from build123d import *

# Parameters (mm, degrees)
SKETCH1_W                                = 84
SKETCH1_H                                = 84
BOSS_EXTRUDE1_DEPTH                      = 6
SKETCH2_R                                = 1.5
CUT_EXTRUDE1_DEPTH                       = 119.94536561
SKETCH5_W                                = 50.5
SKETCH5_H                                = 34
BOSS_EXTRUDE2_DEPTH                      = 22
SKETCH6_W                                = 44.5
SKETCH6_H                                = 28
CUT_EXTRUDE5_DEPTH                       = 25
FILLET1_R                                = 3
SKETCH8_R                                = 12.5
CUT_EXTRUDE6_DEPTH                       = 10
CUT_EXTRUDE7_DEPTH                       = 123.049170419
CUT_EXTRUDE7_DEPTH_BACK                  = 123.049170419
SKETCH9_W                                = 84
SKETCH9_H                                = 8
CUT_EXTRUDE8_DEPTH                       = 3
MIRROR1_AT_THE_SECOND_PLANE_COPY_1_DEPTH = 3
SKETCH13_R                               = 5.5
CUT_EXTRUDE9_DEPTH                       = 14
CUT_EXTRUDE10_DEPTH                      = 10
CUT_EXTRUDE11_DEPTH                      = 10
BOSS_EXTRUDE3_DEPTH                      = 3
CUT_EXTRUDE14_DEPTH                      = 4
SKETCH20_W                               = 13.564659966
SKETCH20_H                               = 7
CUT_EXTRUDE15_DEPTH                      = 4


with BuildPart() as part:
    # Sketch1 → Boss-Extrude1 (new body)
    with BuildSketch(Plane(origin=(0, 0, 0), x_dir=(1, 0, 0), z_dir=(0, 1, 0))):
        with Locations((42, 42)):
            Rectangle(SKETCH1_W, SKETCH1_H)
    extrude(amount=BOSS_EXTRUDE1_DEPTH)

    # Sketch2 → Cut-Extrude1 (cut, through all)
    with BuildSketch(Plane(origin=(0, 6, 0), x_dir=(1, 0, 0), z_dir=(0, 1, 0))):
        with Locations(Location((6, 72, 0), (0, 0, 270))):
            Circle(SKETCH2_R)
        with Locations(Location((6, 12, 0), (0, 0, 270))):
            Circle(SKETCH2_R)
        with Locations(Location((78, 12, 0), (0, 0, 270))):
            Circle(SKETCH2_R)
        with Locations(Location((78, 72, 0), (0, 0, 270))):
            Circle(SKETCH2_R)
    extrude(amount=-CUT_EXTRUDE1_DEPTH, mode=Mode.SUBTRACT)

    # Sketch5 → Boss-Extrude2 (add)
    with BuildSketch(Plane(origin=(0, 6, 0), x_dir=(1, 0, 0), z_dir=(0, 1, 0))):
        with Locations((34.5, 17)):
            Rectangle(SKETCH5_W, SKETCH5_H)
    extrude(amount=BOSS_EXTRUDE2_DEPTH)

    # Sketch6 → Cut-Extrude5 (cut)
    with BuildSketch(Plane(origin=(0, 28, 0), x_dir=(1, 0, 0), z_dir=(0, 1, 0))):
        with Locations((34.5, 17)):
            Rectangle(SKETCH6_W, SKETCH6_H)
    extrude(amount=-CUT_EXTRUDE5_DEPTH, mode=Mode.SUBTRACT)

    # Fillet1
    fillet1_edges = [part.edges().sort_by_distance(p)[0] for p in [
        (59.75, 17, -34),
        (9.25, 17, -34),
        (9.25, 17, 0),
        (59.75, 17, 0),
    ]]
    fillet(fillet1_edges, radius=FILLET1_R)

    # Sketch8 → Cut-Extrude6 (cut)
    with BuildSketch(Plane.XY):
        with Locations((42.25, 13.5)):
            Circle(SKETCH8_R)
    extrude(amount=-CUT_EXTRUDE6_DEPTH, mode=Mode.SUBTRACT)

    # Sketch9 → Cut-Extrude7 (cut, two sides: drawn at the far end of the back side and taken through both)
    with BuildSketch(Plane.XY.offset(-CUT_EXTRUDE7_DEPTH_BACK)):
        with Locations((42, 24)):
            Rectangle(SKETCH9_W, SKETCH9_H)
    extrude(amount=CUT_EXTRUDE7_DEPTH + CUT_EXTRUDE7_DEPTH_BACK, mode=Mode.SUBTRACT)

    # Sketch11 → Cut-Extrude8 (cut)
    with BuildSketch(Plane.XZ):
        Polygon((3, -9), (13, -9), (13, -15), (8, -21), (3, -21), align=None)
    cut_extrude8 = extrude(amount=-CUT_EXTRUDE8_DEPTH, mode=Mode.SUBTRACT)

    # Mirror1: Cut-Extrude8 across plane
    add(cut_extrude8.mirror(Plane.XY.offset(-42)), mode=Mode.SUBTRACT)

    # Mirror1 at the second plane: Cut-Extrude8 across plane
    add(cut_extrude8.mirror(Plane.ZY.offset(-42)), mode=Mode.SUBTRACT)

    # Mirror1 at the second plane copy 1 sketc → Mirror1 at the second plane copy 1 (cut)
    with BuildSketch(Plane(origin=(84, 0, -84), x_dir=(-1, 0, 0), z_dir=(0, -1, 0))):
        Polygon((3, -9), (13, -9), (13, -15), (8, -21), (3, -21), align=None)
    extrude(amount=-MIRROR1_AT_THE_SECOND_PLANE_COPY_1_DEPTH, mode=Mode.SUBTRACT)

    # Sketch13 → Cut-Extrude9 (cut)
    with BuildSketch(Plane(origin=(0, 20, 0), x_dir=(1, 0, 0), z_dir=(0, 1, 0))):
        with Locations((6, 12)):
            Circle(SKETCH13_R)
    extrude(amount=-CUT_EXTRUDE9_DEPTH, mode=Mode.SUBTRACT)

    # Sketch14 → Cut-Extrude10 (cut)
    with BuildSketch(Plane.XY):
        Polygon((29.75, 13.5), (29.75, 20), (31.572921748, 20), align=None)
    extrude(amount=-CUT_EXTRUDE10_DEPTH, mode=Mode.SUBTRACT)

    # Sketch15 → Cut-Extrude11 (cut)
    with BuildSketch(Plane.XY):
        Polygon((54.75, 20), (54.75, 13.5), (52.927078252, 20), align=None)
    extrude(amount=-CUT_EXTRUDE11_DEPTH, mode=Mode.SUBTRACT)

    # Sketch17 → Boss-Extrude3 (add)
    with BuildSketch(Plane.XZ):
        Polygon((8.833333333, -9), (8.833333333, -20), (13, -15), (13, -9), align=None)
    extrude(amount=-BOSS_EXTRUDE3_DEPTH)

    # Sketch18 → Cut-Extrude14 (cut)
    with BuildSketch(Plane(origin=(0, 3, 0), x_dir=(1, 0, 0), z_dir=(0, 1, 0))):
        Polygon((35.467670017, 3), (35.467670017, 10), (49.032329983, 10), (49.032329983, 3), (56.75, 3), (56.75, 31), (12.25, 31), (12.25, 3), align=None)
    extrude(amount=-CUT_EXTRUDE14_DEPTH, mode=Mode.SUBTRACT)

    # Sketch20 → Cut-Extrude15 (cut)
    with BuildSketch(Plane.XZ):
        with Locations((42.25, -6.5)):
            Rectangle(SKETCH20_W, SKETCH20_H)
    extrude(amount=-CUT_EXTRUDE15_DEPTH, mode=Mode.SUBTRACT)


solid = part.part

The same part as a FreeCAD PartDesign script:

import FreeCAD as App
import Part
import Sketcher


def edges_at(feature, points):
    """Names of the edges that pass closest to the given points."""
    edges = feature.Shape.Edges
    near = lambda p: min(range(len(edges)), key=lambda i: edges[i].distToShape(Part.Vertex(*p))[0])
    return sorted({f"Edge{near(p) + 1}" for p in points})

doc = App.newDocument("Part")
body = doc.addObject("PartDesign::Body", "Body")

sketch1 = body.newObject("Sketcher::SketchObject", "Sketch")
sketch1.AttachmentSupport = (doc.getObject("XZ_Plane"), [""])
sketch1.MapMode = "FlatFace"
sketch1.addGeometry([
    Part.LineSegment(App.Vector(0, -84, 0), App.Vector(0, 0, 0)),
    Part.LineSegment(App.Vector(0, 0, 0), App.Vector(84, 0, 0)),
    Part.LineSegment(App.Vector(84, 0, 0), App.Vector(84, -84, 0)),
    Part.LineSegment(App.Vector(84, -84, 0), App.Vector(0, -84, 0)),
], False)
sketch1.addConstraint([
    Sketcher.Constraint("Coincident", 0, 2, 1, 1),
    Sketcher.Constraint("Coincident", 1, 2, 2, 1),
    Sketcher.Constraint("Coincident", 2, 2, 3, 1),
    Sketcher.Constraint("Coincident", 3, 2, 0, 1),
    Sketcher.Constraint("Vertical", 0),
    Sketcher.Constraint("Horizontal", 1),
    Sketcher.Constraint("Vertical", 2),
    Sketcher.Constraint("Horizontal", 3),
    Sketcher.Constraint("Coincident", 0, 2, -1, 1),
    Sketcher.Constraint("Equal", 3, 0),
    Sketcher.Constraint("DistanceX", 1, 1, 1, 2, 84.0),
])
pad1 = body.newObject("PartDesign::Pad", "Pad")
pad1.Profile = sketch1
pad1.Length = 6
pad1.Reversed = True

sketch2 = body.newObject("Sketcher::SketchObject", "Sketch001")
sketch2.AttachmentSupport = (doc.getObject("XZ_Plane"), [""])
sketch2.MapMode = "FlatFace"
sketch2.AttachmentOffset = App.Placement(App.Vector(0, 0, -6), App.Rotation())
sketch2.addGeometry([
    Part.Circle(App.Vector(6, -72, 0), App.Vector(0, 0, 1), 1.5),
    Part.Circle(App.Vector(6, -12, 0), App.Vector(0, 0, 1), 1.5),
    Part.Circle(App.Vector(78, -12, 0), App.Vector(0, 0, 1), 1.5),
    Part.Circle(App.Vector(78, -72, 0), App.Vector(0, 0, 1), 1.5),
], False)
sketch2.addConstraint([
    Sketcher.Constraint("Equal", 0, 1),
    Sketcher.Constraint("Equal", 1, 2),
    Sketcher.Constraint("Equal", 2, 3),
    Sketcher.Constraint("Horizontal", 1, 3, 2, 3),
    Sketcher.Constraint("Horizontal", 0, 3, 3, 3),
    Sketcher.Constraint("Vertical", 0, 3, 1, 3),
    Sketcher.Constraint("Vertical", 2, 3, 3, 3),
    Sketcher.Constraint("Diameter", 0, 3.0),
    Sketcher.Constraint("DistanceX", -1, 1, 0, 3, 6.0),
    Sketcher.Constraint("DistanceY", 0, 3, -1, 1, 72.0),
    Sketcher.Constraint("DistanceY", 1, 3, -1, 1, 12.0),
    Sketcher.Constraint("DistanceX", -1, 1, 2, 3, 78.0),
])
pocket1 = body.newObject("PartDesign::Pocket", "Pocket")
pocket1.Profile = sketch2
pocket1.Type = "ThroughAll"
pocket1.Reversed = True

sketch3 = body.newObject("Sketcher::SketchObject", "Sketch002")
sketch3.AttachmentSupport = (doc.getObject("XZ_Plane"), [""])
sketch3.MapMode = "FlatFace"
sketch3.AttachmentOffset = App.Placement(App.Vector(0, 0, -6), App.Rotation())
sketch3.addGeometry([
    Part.LineSegment(App.Vector(9, -34, 0), App.Vector(9, 0, 0)),
    Part.LineSegment(App.Vector(9, 0, 0), App.Vector(60, 0, 0)),
    Part.LineSegment(App.Vector(60, 0, 0), App.Vector(60, -34, 0)),
    Part.LineSegment(App.Vector(60, -34, 0), App.Vector(9, -34, 0)),
], False)
sketch3.addConstraint([
    Sketcher.Constraint("Coincident", 0, 2, 1, 1),
    Sketcher.Constraint("Coincident", 1, 2, 2, 1),
    Sketcher.Constraint("Coincident", 2, 2, 3, 1),
    Sketcher.Constraint("Coincident", 3, 2, 0, 1),
    Sketcher.Constraint("Vertical", 0),
    Sketcher.Constraint("Horizontal", 1),
    Sketcher.Constraint("Vertical", 2),
    Sketcher.Constraint("Horizontal", 3),
    Sketcher.Constraint("PointOnObject", 0, 2, -1),
    Sketcher.Constraint("DistanceY", 0, 1, 0, 2, 34.0),
    Sketcher.Constraint("DistanceX", 1, 1, 1, 2, 50.5),
    Sketcher.Constraint("DistanceX", -1, 1, 0, 2, 9.25),
])
pad2 = body.newObject("PartDesign::Pad", "Pad001")
pad2.Profile = sketch3
pad2.Length = 22
pad2.Reversed = True

sketch4 = body.newObject("Sketcher::SketchObject", "Sketch003")
sketch4.AttachmentSupport = (doc.getObject("XZ_Plane"), [""])
sketch4.MapMode = "FlatFace"
sketch4.AttachmentOffset = App.Placement(App.Vector(0, 0, -28), App.Rotation())
sketch4.addGeometry([
    Part.LineSegment(App.Vector(12, -31, 0), App.Vector(12, -3, 0)),
    Part.LineSegment(App.Vector(12, -3, 0), App.Vector(57, -3, 0)),
    Part.LineSegment(App.Vector(57, -3, 0), App.Vector(57, -31, 0)),
    Part.LineSegment(App.Vector(57, -31, 0), App.Vector(12, -31, 0)),
], False)
sketch4.addConstraint([
    Sketcher.Constraint("Coincident", 0, 2, 1, 1),
    Sketcher.Constraint("Coincident", 1, 2, 2, 1),
    Sketcher.Constraint("Coincident", 2, 2, 3, 1),
    Sketcher.Constraint("Coincident", 3, 2, 0, 1),
    Sketcher.Constraint("Vertical", 0),
    Sketcher.Constraint("Horizontal", 1),
    Sketcher.Constraint("Vertical", 2),
    Sketcher.Constraint("Horizontal", 3),
    Sketcher.Constraint("DistanceY", 0, 1, 0, 2, 28.0),
    Sketcher.Constraint("DistanceX", 1, 1, 1, 2, 44.5),
    Sketcher.Constraint("DistanceY", 0, 2, -1, 1, 3.0),
    Sketcher.Constraint("DistanceX", -1, 1, 0, 2, 12.25),
])
pocket2 = body.newObject("PartDesign::Pocket", "Pocket001")
pocket2.Profile = sketch4
pocket2.Length = 25
pocket2.Reversed = True
doc.recompute()

fillet = body.newObject("PartDesign::Fillet", "Fillet")
fillet.Base = (pocket2, edges_at(pocket2, [
    (59.75, 17, -34),
    (9.25, 17, -34),
    (9.25, 17, 0),
    (59.75, 17, 0),
]))
fillet.Radius = 3

sketch5 = body.newObject("Sketcher::SketchObject", "Sketch004")
sketch5.AttachmentSupport = (doc.getObject("XY_Plane"), [""])
sketch5.MapMode = "FlatFace"
sketch5.addGeometry(Part.Circle(App.Vector(42, 14, 0), App.Vector(0, 0, 1), 12), False)
sketch5.addConstraint([
    Sketcher.Constraint("Diameter", 0, 25.0),
    Sketcher.Constraint("DistanceY", -1, 1, 0, 3, 13.5),
    Sketcher.Constraint("DistanceX", -1, 1, 0, 3, 42.25),
])
pocket3 = body.newObject("PartDesign::Pocket", "Pocket002")
pocket3.Profile = sketch5
pocket3.Length = 10

sketch6 = body.newObject("Sketcher::SketchObject", "Sketch005")
sketch6.AttachmentSupport = (doc.getObject("XY_Plane"), [""])
sketch6.MapMode = "FlatFace"
sketch6.addGeometry([
    Part.LineSegment(App.Vector(0, 28, 0), App.Vector(0, 20, 0)),
    Part.LineSegment(App.Vector(0, 20, 0), App.Vector(84, 20, 0)),
    Part.LineSegment(App.Vector(84, 20, 0), App.Vector(84, 28, 0)),
    Part.LineSegment(App.Vector(84, 28, 0), App.Vector(0, 28, 0)),
], False)
sketch6.addConstraint([
    Sketcher.Constraint("Coincident", 0, 2, 1, 1),
    Sketcher.Constraint("Coincident", 1, 2, 2, 1),
    Sketcher.Constraint("Coincident", 2, 2, 3, 1),
    Sketcher.Constraint("Coincident", 3, 2, 0, 1),
    Sketcher.Constraint("Vertical", 0),
    Sketcher.Constraint("Horizontal", 1),
    Sketcher.Constraint("Vertical", 2),
    Sketcher.Constraint("Horizontal", 3),
    Sketcher.Constraint("PointOnObject", 0, 2, -2),
    Sketcher.Constraint("DistanceX", 1, 1, 1, 2, 84.0),
    Sketcher.Constraint("DistanceY", 0, 2, 0, 1, 8.0),
    Sketcher.Constraint("DistanceY", -1, 1, 0, 2, 20.0),
])
pocket4 = body.newObject("PartDesign::Pocket", "Pocket003")
pocket4.Profile = sketch6
pocket4.Type = "ThroughAll"
pocket4.Midplane = True

sketch7 = body.newObject("Sketcher::SketchObject", "Sketch006")
sketch7.AttachmentSupport = (doc.getObject("XZ_Plane"), [""])
sketch7.MapMode = "FlatFace"
sketch7.addGeometry([
    Part.LineSegment(App.Vector(13, -9, 0), App.Vector(3, -9, 0)),
    Part.LineSegment(App.Vector(3, -9, 0), App.Vector(3, -21, 0)),
    Part.LineSegment(App.Vector(3, -21, 0), App.Vector(8, -21, 0)),
    Part.LineSegment(App.Vector(8, -21, 0), App.Vector(13, -15, 0)),
    Part.LineSegment(App.Vector(13, -15, 0), App.Vector(13, -9, 0)),
], False)
sketch7.addConstraint([
    Sketcher.Constraint("Coincident", 0, 2, 1, 1),
    Sketcher.Constraint("Coincident", 1, 2, 2, 1),
    Sketcher.Constraint("Coincident", 2, 2, 3, 1),
    Sketcher.Constraint("Coincident", 3, 2, 4, 1),
    Sketcher.Constraint("Coincident", 4, 2, 0, 1),
    Sketcher.Constraint("Horizontal", 0),
    Sketcher.Constraint("Vertical", 1),
    Sketcher.Constraint("Horizontal", 2),
    Sketcher.Constraint("Vertical", 4),
    Sketcher.Constraint("DistanceX", 0, 2, 0, 1, 10.0),
    Sketcher.Constraint("DistanceX", 2, 1, 2, 2, 5.0),
    Sketcher.Constraint("DistanceY", 1, 2, 1, 1, 12.0),
    Sketcher.Constraint("DistanceY", 4, 1, 4, 2, 6.0),
    Sketcher.Constraint("DistanceX", -1, 1, 0, 2, 3.0),
    Sketcher.Constraint("DistanceY", 0, 2, -1, 1, 9.0),
])
pocket5 = body.newObject("PartDesign::Pocket", "Pocket004")
pocket5.Profile = sketch7
pocket5.Length = 3
doc.recompute()

datumplane = body.newObject("PartDesign::Plane", "DatumPlane")
datumplane.AttachmentSupport = (doc.getObject("XY_Plane"), [""])
datumplane.MapMode = "FlatFace"
datumplane.AttachmentOffset = App.Placement(App.Vector(0, 0, -42), App.Rotation())
mirrored = body.newObject("PartDesign::Mirrored", "Mirrored")
mirrored.Originals = [pocket5]
mirrored.MirrorPlane = (datumplane, [""])
body.Tip = mirrored
doc.recompute()

datumplane2 = body.newObject("PartDesign::Plane", "DatumPlane001")
datumplane2.AttachmentSupport = (doc.getObject("YZ_Plane"), [""])
datumplane2.MapMode = "FlatFace"
datumplane2.AttachmentOffset = App.Placement(App.Vector(0, 0, 42), App.Rotation())
mirrored2 = body.newObject("PartDesign::Mirrored", "Mirrored001")
mirrored2.Originals = [pocket5]
mirrored2.MirrorPlane = (datumplane2, [""])
body.Tip = mirrored2

sketch8 = body.newObject("Sketcher::SketchObject", "Sketch007")
sketch8.AttachmentSupport = (doc.getObject("XZ_Plane"), [""])
sketch8.MapMode = "FlatFace"
sketch8.addGeometry([
    Part.LineSegment(App.Vector(71, -75, 0), App.Vector(81, -75, 0)),
    Part.LineSegment(App.Vector(81, -75, 0), App.Vector(81, -63, 0)),
    Part.LineSegment(App.Vector(81, -63, 0), App.Vector(76, -63, 0)),
    Part.LineSegment(App.Vector(76, -63, 0), App.Vector(71, -69, 0)),
    Part.LineSegment(App.Vector(71, -69, 0), App.Vector(71, -75, 0)),
], False)
sketch8.addConstraint([
    Sketcher.Constraint("Coincident", 0, 2, 1, 1),
    Sketcher.Constraint("Coincident", 1, 2, 2, 1),
    Sketcher.Constraint("Coincident", 2, 2, 3, 1),
    Sketcher.Constraint("Coincident", 3, 2, 4, 1),
    Sketcher.Constraint("Coincident", 4, 2, 0, 1),
    Sketcher.Constraint("Horizontal", 0),
    Sketcher.Constraint("Vertical", 1),
    Sketcher.Constraint("Horizontal", 2),
    Sketcher.Constraint("Vertical", 4),
    Sketcher.Constraint("DistanceX", 0, 1, 0, 2, 10.0),
    Sketcher.Constraint("DistanceX", 2, 2, 2, 1, 5.0),
    Sketcher.Constraint("DistanceY", 1, 1, 1, 2, 12.0),
    Sketcher.Constraint("DistanceY", 4, 2, 4, 1, 6.0),
    Sketcher.Constraint("DistanceX", -1, 1, 0, 2, 81.0),
    Sketcher.Constraint("DistanceY", 0, 2, -1, 1, 75.0),
])
pocket6 = body.newObject("PartDesign::Pocket", "Pocket005")
pocket6.Profile = sketch8
pocket6.Length = 3

sketch9 = body.newObject("Sketcher::SketchObject", "Sketch008")
sketch9.AttachmentSupport = (doc.getObject("XZ_Plane"), [""])
sketch9.MapMode = "FlatFace"
sketch9.AttachmentOffset = App.Placement(App.Vector(0, 0, -20), App.Rotation())
sketch9.addGeometry(Part.Circle(App.Vector(6, -12, 0), App.Vector(0, 0, 1), 6), False)
sketch9.addConstraint([
    Sketcher.Constraint("Diameter", 0, 11.0),
    Sketcher.Constraint("DistanceX", -1, 1, 0, 3, 6.0),
    Sketcher.Constraint("DistanceY", 0, 3, -1, 1, 12.0),
])
pocket7 = body.newObject("PartDesign::Pocket", "Pocket006")
pocket7.Profile = sketch9
pocket7.Length = 14
pocket7.Reversed = True

sketch10 = body.newObject("Sketcher::SketchObject", "Sketch009")
sketch10.AttachmentSupport = (doc.getObject("XY_Plane"), [""])
sketch10.MapMode = "FlatFace"
sketch10.addGeometry([
    Part.LineSegment(App.Vector(29.8, 20, 0), App.Vector(29.8, 13.5, 0)),
    Part.LineSegment(App.Vector(29.8, 13.5, 0), App.Vector(31.6, 20, 0)),
    Part.LineSegment(App.Vector(31.6, 20, 0), App.Vector(29.8, 20, 0)),
], False)
sketch10.addConstraint([
    Sketcher.Constraint("Coincident", 0, 2, 1, 1),
    Sketcher.Constraint("Coincident", 1, 2, 2, 1),
    Sketcher.Constraint("Coincident", 2, 2, 0, 1),
    Sketcher.Constraint("Vertical", 0),
    Sketcher.Constraint("Horizontal", 2),
    Sketcher.Constraint("DistanceY", 0, 2, 0, 1, 6.5),
    Sketcher.Constraint("DistanceY", -1, 1, 1, 2, 20.0),
    Sketcher.Constraint("DistanceX", -1, 1, 0, 2, 29.75),
    Sketcher.Constraint("DistanceX", 2, 2, 2, 1, 1.822922),
])
pocket8 = body.newObject("PartDesign::Pocket", "Pocket007")
pocket8.Profile = sketch10
pocket8.Length = 10

sketch11 = body.newObject("Sketcher::SketchObject", "Sketch010")
sketch11.AttachmentSupport = (doc.getObject("XY_Plane"), [""])
sketch11.MapMode = "FlatFace"
sketch11.addGeometry([
    Part.LineSegment(App.Vector(54.8, 13.5, 0), App.Vector(54.8, 20, 0)),
    Part.LineSegment(App.Vector(54.8, 20, 0), App.Vector(52.9, 20, 0)),
    Part.LineSegment(App.Vector(52.9, 20, 0), App.Vector(54.8, 13.5, 0)),
], False)
sketch11.addConstraint([
    Sketcher.Constraint("Coincident", 0, 2, 1, 1),
    Sketcher.Constraint("Coincident", 1, 2, 2, 1),
    Sketcher.Constraint("Coincident", 2, 2, 0, 1),
    Sketcher.Constraint("Vertical", 0),
    Sketcher.Constraint("Horizontal", 1),
    Sketcher.Constraint("DistanceY", 0, 1, 0, 2, 6.5),
    Sketcher.Constraint("DistanceY", -1, 1, 0, 2, 20.0),
    Sketcher.Constraint("DistanceX", -1, 1, 0, 2, 54.75),
    Sketcher.Constraint("DistanceX", 1, 2, 1, 1, 1.822922),
])
pocket9 = body.newObject("PartDesign::Pocket", "Pocket008")
pocket9.Profile = sketch11
pocket9.Length = 10

sketch12 = body.newObject("Sketcher::SketchObject", "Sketch011")
sketch12.AttachmentSupport = (doc.getObject("XZ_Plane"), [""])
sketch12.MapMode = "FlatFace"
sketch12.addGeometry([
    Part.LineSegment(App.Vector(8.8, -9, 0), App.Vector(8.8, -20, 0)),
    Part.LineSegment(App.Vector(8.8, -20, 0), App.Vector(13, -15, 0)),
    Part.LineSegment(App.Vector(13, -15, 0), App.Vector(13, -9, 0)),
    Part.LineSegment(App.Vector(13, -9, 0), App.Vector(8.8, -9, 0)),
], False)
sketch12.addConstraint([
    Sketcher.Constraint("Coincident", 0, 2, 1, 1),
    Sketcher.Constraint("Coincident", 1, 2, 2, 1),
    Sketcher.Constraint("Coincident", 2, 2, 3, 1),
    Sketcher.Constraint("Coincident", 3, 2, 0, 1),
    Sketcher.Constraint("Vertical", 0),
    Sketcher.Constraint("Vertical", 2),
    Sketcher.Constraint("Horizontal", 3),
    Sketcher.Constraint("DistanceY", 0, 2, 0, 1, 11.0),
    Sketcher.Constraint("DistanceY", 2, 1, 2, 2, 6.0),
    Sketcher.Constraint("DistanceY", 0, 2, -1, 1, 20.0),
    Sketcher.Constraint("DistanceX", -1, 1, 1, 2, 13.0),
    Sketcher.Constraint("Distance", 1, 6.508541),
])
pad3 = body.newObject("PartDesign::Pad", "Pad002")
pad3.Profile = sketch12
pad3.Length = 3
pad3.Reversed = True

sketch13 = body.newObject("Sketcher::SketchObject", "Sketch012")
sketch13.AttachmentSupport = (doc.getObject("XZ_Plane"), [""])
sketch13.MapMode = "FlatFace"
sketch13.AttachmentOffset = App.Placement(App.Vector(0, 0, -3), App.Rotation())
sketch13.addGeometry([
    Part.LineSegment(App.Vector(35, -3, 0), App.Vector(35, -10, 0)),
    Part.LineSegment(App.Vector(35, -10, 0), App.Vector(49, -10, 0)),
    Part.LineSegment(App.Vector(49, -10, 0), App.Vector(49, -3, 0)),
    Part.LineSegment(App.Vector(49, -3, 0), App.Vector(57, -3, 0)),
    Part.LineSegment(App.Vector(57, -3, 0), App.Vector(57, -31, 0)),
    Part.LineSegment(App.Vector(57, -31, 0), App.Vector(12, -31, 0)),
    Part.LineSegment(App.Vector(12, -31, 0), App.Vector(12, -3, 0)),
    Part.LineSegment(App.Vector(12, -3, 0), App.Vector(35, -3, 0)),
], False)
sketch13.addConstraint([
    Sketcher.Constraint("Coincident", 0, 2, 1, 1),
    Sketcher.Constraint("Coincident", 1, 2, 2, 1),
    Sketcher.Constraint("Coincident", 2, 2, 3, 1),
    Sketcher.Constraint("Coincident", 3, 2, 4, 1),
    Sketcher.Constraint("Coincident", 4, 2, 5, 1),
    Sketcher.Constraint("Coincident", 5, 2, 6, 1),
    Sketcher.Constraint("Coincident", 6, 2, 7, 1),
    Sketcher.Constraint("Coincident", 7, 2, 0, 1),
    Sketcher.Constraint("Vertical", 0),
    Sketcher.Constraint("Horizontal", 1),
    Sketcher.Constraint("Vertical", 2),
    Sketcher.Constraint("Horizontal", 3),
    Sketcher.Constraint("Vertical", 4),
    Sketcher.Constraint("Horizontal", 5),
    Sketcher.Constraint("Vertical", 6),
    Sketcher.Constraint("Horizontal", 7),
    Sketcher.Constraint("Horizontal", 3, 2, 6, 2),
    Sketcher.Constraint("DistanceY", 0, 2, 0, 1, 7.0),
    Sketcher.Constraint("DistanceY", 4, 2, 4, 1, 28.0),
    Sketcher.Constraint("DistanceX", 5, 2, 5, 1, 44.5),
    Sketcher.Constraint("DistanceY", 0, 2, -1, 1, 10.0),
    Sketcher.Constraint("DistanceX", -1, 1, 3, 2, 56.75),
    Sketcher.Constraint("DistanceX", 1, 1, 1, 2, 13.56466),
    Sketcher.Constraint("DistanceX", 3, 1, 3, 2, 7.71767),
])
pocket10 = body.newObject("PartDesign::Pocket", "Pocket009")
pocket10.Profile = sketch13
pocket10.Length = 4
pocket10.Reversed = True

sketch14 = body.newObject("Sketcher::SketchObject", "Sketch013")
sketch14.AttachmentSupport = (doc.getObject("XZ_Plane"), [""])
sketch14.MapMode = "FlatFace"
sketch14.addGeometry([
    Part.LineSegment(App.Vector(35, -3, 0), App.Vector(35, -10, 0)),
    Part.LineSegment(App.Vector(35, -10, 0), App.Vector(49, -10, 0)),
    Part.LineSegment(App.Vector(49, -10, 0), App.Vector(49, -3, 0)),
    Part.LineSegment(App.Vector(49, -3, 0), App.Vector(35, -3, 0)),
], False)
sketch14.addConstraint([
    Sketcher.Constraint("Coincident", 0, 2, 1, 1),
    Sketcher.Constraint("Coincident", 1, 2, 2, 1),
    Sketcher.Constraint("Coincident", 2, 2, 3, 1),
    Sketcher.Constraint("Coincident", 3, 2, 0, 1),
    Sketcher.Constraint("Vertical", 0),
    Sketcher.Constraint("Horizontal", 1),
    Sketcher.Constraint("Vertical", 2),
    Sketcher.Constraint("Horizontal", 3),
    Sketcher.Constraint("DistanceY", 0, 2, 0, 1, 7.0),
    Sketcher.Constraint("DistanceY", 0, 2, -1, 1, 10.0),
    Sketcher.Constraint("DistanceX", 1, 1, 1, 2, 13.56466),
    Sketcher.Constraint("DistanceX", -1, 1, 0, 2, 35.46767),
])
pocket11 = body.newObject("PartDesign::Pocket", "Pocket010")
pocket11.Profile = sketch14
pocket11.Length = 4

doc.recompute()
